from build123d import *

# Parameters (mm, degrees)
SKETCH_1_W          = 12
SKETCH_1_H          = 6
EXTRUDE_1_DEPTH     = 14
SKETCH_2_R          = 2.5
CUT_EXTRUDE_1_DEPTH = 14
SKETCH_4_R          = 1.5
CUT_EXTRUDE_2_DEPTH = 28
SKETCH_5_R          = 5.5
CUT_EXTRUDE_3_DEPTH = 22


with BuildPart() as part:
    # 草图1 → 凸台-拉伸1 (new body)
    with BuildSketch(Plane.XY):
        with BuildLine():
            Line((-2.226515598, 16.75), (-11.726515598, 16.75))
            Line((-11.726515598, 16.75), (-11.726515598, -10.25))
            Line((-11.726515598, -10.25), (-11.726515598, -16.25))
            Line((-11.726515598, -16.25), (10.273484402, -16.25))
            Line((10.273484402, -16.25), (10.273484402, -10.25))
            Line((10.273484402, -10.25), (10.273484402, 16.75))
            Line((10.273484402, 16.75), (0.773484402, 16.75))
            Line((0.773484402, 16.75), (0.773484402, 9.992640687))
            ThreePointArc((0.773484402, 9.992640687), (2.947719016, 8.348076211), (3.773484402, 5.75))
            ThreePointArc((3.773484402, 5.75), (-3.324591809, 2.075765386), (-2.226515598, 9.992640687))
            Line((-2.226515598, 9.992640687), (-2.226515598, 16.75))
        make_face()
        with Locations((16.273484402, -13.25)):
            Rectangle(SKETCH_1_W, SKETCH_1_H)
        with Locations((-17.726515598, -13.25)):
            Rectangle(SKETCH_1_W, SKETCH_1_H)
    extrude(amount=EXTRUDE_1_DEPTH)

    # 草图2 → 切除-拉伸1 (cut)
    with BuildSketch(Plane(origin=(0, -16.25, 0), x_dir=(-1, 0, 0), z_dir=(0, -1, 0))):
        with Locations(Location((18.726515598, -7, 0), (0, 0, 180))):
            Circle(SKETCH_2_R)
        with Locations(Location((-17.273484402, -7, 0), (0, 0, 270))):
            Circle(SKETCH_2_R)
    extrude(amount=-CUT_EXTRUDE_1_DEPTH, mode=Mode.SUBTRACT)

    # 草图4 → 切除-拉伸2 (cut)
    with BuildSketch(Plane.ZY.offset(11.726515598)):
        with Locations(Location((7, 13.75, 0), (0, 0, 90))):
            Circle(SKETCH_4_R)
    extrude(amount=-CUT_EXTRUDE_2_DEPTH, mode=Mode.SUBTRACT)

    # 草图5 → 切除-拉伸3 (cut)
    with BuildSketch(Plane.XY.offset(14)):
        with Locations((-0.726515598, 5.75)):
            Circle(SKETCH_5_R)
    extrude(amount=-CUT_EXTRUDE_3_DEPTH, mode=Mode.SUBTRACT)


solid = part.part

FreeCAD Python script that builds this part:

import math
import FreeCAD as App
import Part
import Sketcher
Q = App.Units.Quantity

doc = App.newDocument("Part")
body = doc.addObject("PartDesign::Body", "Body")

# Sketch on XY plane
sketch1 = doc.addObject("Sketcher::SketchObject", "Sketch")
body.addObject(sketch1)
sketch1.AttachmentSupport = (doc.XY_Plane, [""])
sketch1.MapMode = "FlatFace"
sketch1.addGeometry(Part.LineSegment(App.Vector(-2.2, 16.8, 0), App.Vector(-11.7, 16.8, 0)), False)
sketch1.addGeometry(Part.LineSegment(App.Vector(-11.7, 16.8, 0), App.Vector(-11.7, -10.2, 0)), False)
sketch1.addGeometry(Part.LineSegment(App.Vector(-11.7, -10.2, 0), App.Vector(-23.7, -10.2, 0)), False)
sketch1.addGeometry(Part.LineSegment(App.Vector(-23.7, -10.2, 0), App.Vector(-23.7, -16.2, 0)), False)
sketch1.addGeometry(Part.LineSegment(App.Vector(-23.7, -16.2, 0), App.Vector(22.3, -16.2, 0)), False)
sketch1.addGeometry(Part.LineSegment(App.Vector(22.3, -16.2, 0), App.Vector(22.3, -10.2, 0)), False)
sketch1.addGeometry(Part.LineSegment(App.Vector(22.3, -10.2, 0), App.Vector(10.3, -10.2, 0)), False)
sketch1.addGeometry(Part.LineSegment(App.Vector(10.3, -10.2, 0), App.Vector(10.3, 16.8, 0)), False)
sketch1.addGeometry(Part.LineSegment(App.Vector(10.3, 16.8, 0), App.Vector(0.8, 16.8, 0)), False)
sketch1.addGeometry(Part.LineSegment(App.Vector(0.8, 16.8, 0), App.Vector(0.8, 10, 0)), False)
sketch1.addGeometry(Part.ArcOfCircle(Part.Circle(App.Vector(-0.7, 5.7, 0), App.Vector(0, 0, 1), 4.5), math.radians(0), math.radians(71)), False)
sketch1.addGeometry(Part.ArcOfCircle(Part.Circle(App.Vector(-0.7, 5.8, 0), App.Vector(0, 0, 1), 4.5), math.radians(109), math.radians(360)), False)
sketch1.addGeometry(Part.LineSegment(App.Vector(-2.2, 10, 0), App.Vector(-2.2, 16.8, 0)), False)
sketch1.addConstraint(Sketcher.Constraint("Coincident", 0, 2, 1, 1))
sketch1.addConstraint(Sketcher.Constraint("Coincident", 1, 2, 2, 1))
sketch1.addConstraint(Sketcher.Constraint("Coincident", 2, 2, 3, 1))
sketch1.addConstraint(Sketcher.Constraint("Coincident", 3, 2, 4, 1))
sketch1.addConstraint(Sketcher.Constraint("Coincident", 4, 2, 5, 1))
sketch1.addConstraint(Sketcher.Constraint("Coincident", 5, 2, 6, 1))
sketch1.addConstraint(Sketcher.Constraint("Coincident", 6, 2, 7, 1))
sketch1.addConstraint(Sketcher.Constraint("Coincident", 7, 2, 8, 1))
sketch1.addConstraint(Sketcher.Constraint("Coincident", 8, 2, 9, 1))
sketch1.addConstraint(Sketcher.Constraint("Coincident", 9, 2, 10, 2))
sketch1.addConstraint(Sketcher.Constraint("Tangent", 10, 1, 11, 2))
sketch1.addConstraint(Sketcher.Constraint("Coincident", 11, 1, 12, 1))
sketch1.addConstraint(Sketcher.Constraint("Coincident", 12, 2, 0, 1))
sketch1.addConstraint(Sketcher.Constraint("Horizontal", 0))
sketch1.addConstraint(Sketcher.Constraint("Vertical", 1))
sketch1.addConstraint(Sketcher.Constraint("Horizontal", 2))
sketch1.addConstraint(Sketcher.Constraint("Vertical", 3))
sketch1.addConstraint(Sketcher.Constraint("Horizontal", 4))
sketch1.addConstraint(Sketcher.Constraint("Vertical", 5))
sketch1.addConstraint(Sketcher.Constraint("Horizontal", 6))
sketch1.addConstraint(Sketcher.Constraint("Vertical", 7))
sketch1.addConstraint(Sketcher.Constraint("Horizontal", 8))
sketch1.addConstraint(Sketcher.Constraint("Vertical", 9))
sketch1.addConstraint(Sketcher.Constraint("Vertical", 12))
sketch1.addConstraint(Sketcher.Constraint("Equal", 10, 11))
sketch1.addConstraint(Sketcher.Constraint("Horizontal", 2, 2, 5, 2))
sketch1.addConstraint(Sketcher.Constraint("Horizontal", 0, 2, 7, 2))
sketch1.addConstraint(Sketcher.Constraint("Horizontal", 11, 3, 10, 1))
sketch1.addConstraint(Sketcher.Constraint("Horizontal", 9, 2, 11, 1))
sketch1.addConstraint(Sketcher.Constraint("Equal", 2, 6))
sketch1.addConstraint(Sketcher.Constraint("Equal", 0, 8))
sketch1.addConstraint(Sketcher.Constraint("Radius", 10, Q("4.5 mm")))
sketch1.addConstraint(Sketcher.Constraint("DistanceX", 2, 2, 2, 1, Q("12 mm")))
sketch1.addConstraint(Sketcher.Constraint("DistanceX", 4, 1, 4, 2, Q("46 mm")))
sketch1.addConstraint(Sketcher.Constraint("DistanceY", 1, 2, 1, 1, Q("27 mm")))
sketch1.addConstraint(Sketcher.Constraint("DistanceY", 3, 2, 3, 1, Q("6 mm")))
sketch1.addConstraint(Sketcher.Constraint("DistanceX", 0, 2, 0, 1, Q("9.5 mm")))
sketch1.addConstraint(Sketcher.Constraint("DistanceY", 10, 3, 0, 2, Q("11 mm")))
sketch1.addConstraint(Sketcher.Constraint("DistanceY", -1, 1, 10, 3, Q("5.75 mm")))
sketch1.addConstraint(Sketcher.Constraint("DistanceX", 10, 3, -1, 1, Q("0.726516 mm")))
pad1 = doc.addObject("PartDesign::Pad", "Pad")
body.addObject(pad1)
pad1.Profile = sketch1
pad1.Length = 14

# Sketch on XZ plane
sketch2 = doc.addObject("Sketcher::SketchObject", "Sketch001")
body.addObject(sketch2)
sketch2.AttachmentSupport = (doc.XZ_Plane, [""])
sketch2.MapMode = "FlatFace"
sketch2.AttachmentOffset = App.Placement(App.Vector(0, 0, 16.25), App.Rotation())
sketch2.addGeometry(Part.Circle(App.Vector(-18.7, 7, 0), App.Vector(0, 0, 1), 2.5), False)
sketch2.addGeometry(Part.Circle(App.Vector(17.3, 7, 0), App.Vector(0, 0, 1), 2.5), False)
sketch2.addConstraint(Sketcher.Constraint("Equal", 0, 1))
sketch2.addConstraint(Sketcher.Constraint("Horizontal", 0, 3, 1, 3))
sketch2.addConstraint(Sketcher.Constraint("Diameter", 0, Q("5 mm")))
sketch2.addConstraint(Sketcher.Constraint("DistanceY", -1, 1, 0, 3, Q("7 mm")))
sketch2.addConstraint(Sketcher.Constraint("DistanceX", 0, 3, 1, 3, Q("36 mm")))
sketch2.addConstraint(Sketcher.Constraint("DistanceX", 0, 3, -1, 1, Q("18.726516 mm")))
pocket1 = doc.addObject("PartDesign::Pocket", "Pocket")
body.addObject(pocket1)
pocket1.Profile = sketch2
pocket1.Length = 14

# Sketch on YZ plane
sketch3 = doc.addObject("Sketcher::SketchObject", "Sketch002")
body.addObject(sketch3)
sketch3.AttachmentSupport = (doc.YZ_Plane, [""])
sketch3.MapMode = "FlatFace"
sketch3.AttachmentOffset = App.Placement(App.Vector(0, 0, -11.726516), App.Rotation())
sketch3.addGeometry(Part.Circle(App.Vector(13.8, 7, 0), App.Vector(0, 0, 1), 1.5), False)
sketch3.addConstraint(Sketcher.Constraint("Diameter", 0, Q("3 mm")))
sketch3.addConstraint(Sketcher.Constraint("DistanceY", -1, 1, 0, 3, Q("7 mm")))
sketch3.addConstraint(Sketcher.Constraint("DistanceX", -1, 1, 0, 3, Q("13.75 mm")))
pocket2 = doc.addObject("PartDesign::Pocket", "Pocket001")
body.addObject(pocket2)
pocket2.Profile = sketch3
pocket2.Length = 28
pocket2.Reversed = True

# Sketch on XY plane
sketch4 = doc.addObject("Sketcher::SketchObject", "Sketch003")
body.addObject(sketch4)
sketch4.AttachmentSupport = (doc.XY_Plane, [""])
sketch4.MapMode = "FlatFace"
sketch4.AttachmentOffset = App.Placement(App.Vector(0, 0, 14), App.Rotation())
sketch4.addGeometry(Part.Circle(App.Vector(-1, 6, 0), App.Vector(0, 0, 1), 6), False)
sketch4.addConstraint(Sketcher.Constraint("Diameter", 0, Q("11 mm")))
sketch4.addConstraint(Sketcher.Constraint("DistanceY", -1, 1, 0, 3, Q("5.75 mm")))
sketch4.addConstraint(Sketcher.Constraint("DistanceX", 0, 3, -1, 1, Q("0.726516 mm")))
pocket3 = doc.addObject("PartDesign::Pocket", "Pocket002")
body.addObject(pocket3)
pocket3.Profile = sketch4
pocket3.Length = 22

doc.recompute()
